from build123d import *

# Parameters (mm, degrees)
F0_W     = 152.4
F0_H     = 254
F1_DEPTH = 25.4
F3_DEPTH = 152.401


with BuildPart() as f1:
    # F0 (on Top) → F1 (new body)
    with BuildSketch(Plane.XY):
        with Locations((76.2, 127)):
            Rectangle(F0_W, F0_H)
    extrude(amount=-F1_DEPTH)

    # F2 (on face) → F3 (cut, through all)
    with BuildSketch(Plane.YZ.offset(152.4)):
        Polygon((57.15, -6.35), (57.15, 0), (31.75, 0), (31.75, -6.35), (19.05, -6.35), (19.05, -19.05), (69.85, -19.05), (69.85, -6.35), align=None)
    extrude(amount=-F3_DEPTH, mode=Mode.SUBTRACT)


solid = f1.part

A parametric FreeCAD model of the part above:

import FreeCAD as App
import Part
import Sketcher
Q = App.Units.Quantity

doc = App.newDocument("Part")
body = doc.addObject("PartDesign::Body", "Body")

sketch1 = body.newObject("Sketcher::SketchObject", "Sketch")
sketch1.AttachmentSupport = (doc.getObject("XY_Plane"), [""])
sketch1.MapMode = "FlatFace"
sketch1.addGeometry(Part.LineSegment(App.Vector(0, 254, 0), App.Vector(0, 0, 0)), False)
sketch1.addGeometry(Part.LineSegment(App.Vector(0, 0, 0), App.Vector(152, 0, 0)), False)
sketch1.addGeometry(Part.LineSegment(App.Vector(152, 0, 0), App.Vector(152, 254, 0)), False)
sketch1.addGeometry(Part.LineSegment(App.Vector(152, 254, 0), App.Vector(0, 254, 0)), False)
sketch1.addConstraint(Sketcher.Constraint("Coincident", 0, 2, 1, 1))
sketch1.addConstraint(Sketcher.Constraint("Coincident", 1, 2, 2, 1))
sketch1.addConstraint(Sketcher.Constraint("Coincident", 2, 2, 3, 1))
sketch1.addConstraint(Sketcher.Constraint("Coincident", 3, 2, 0, 1))
sketch1.addConstraint(Sketcher.Constraint("Vertical", 0))
sketch1.addConstraint(Sketcher.Constraint("Horizontal", 1))
sketch1.addConstraint(Sketcher.Constraint("Vertical", 2))
sketch1.addConstraint(Sketcher.Constraint("Horizontal", 3))
sketch1.addConstraint(Sketcher.Constraint("Coincident", 0, 2, -1, 1))
sketch1.addConstraint(Sketcher.Constraint("DistanceX", 1, 1, 1, 2, Q("6 in")))
sketch1.addConstraint(Sketcher.Constraint("DistanceY", 0, 2, 0, 1, Q("10 in")))
pad1 = body.newObject("PartDesign::Pad", "Pad")
pad1.Profile = sketch1
pad1.Length = Q("1 in")
pad1.Reversed = True

sketch2 = body.newObject("Sketcher::SketchObject", "Sketch001")
sketch2.AttachmentSupport = (doc.getObject("YZ_Plane"), [""])
sketch2.MapMode = "FlatFace"
sketch2.AttachmentOffset = App.Placement(App.Vector(0, 0, 6 * 25.4), App.Rotation())
sketch2.addGeometry(Part.LineSegment(App.Vector(57, -6, 0), App.Vector(57, 0, 0)), False)
sketch2.addGeometry(Part.LineSegment(App.Vector(57, 0, 0), App.Vector(32, 0, 0)), False)
sketch2.addGeometry(Part.LineSegment(App.Vector(32, 0, 0), App.Vector(32, -6, 0)), False)
sketch2.addGeometry(Part.LineSegment(App.Vector(32, -6, 0), App.Vector(19, -6, 0)), False)
sketch2.addGeometry(Part.LineSegment(App.Vector(19, -6, 0), App.Vector(19, -19, 0)), False)
sketch2.addGeometry(Part.LineSegment(App.Vector(19, -19, 0), App.Vector(70, -19, 0)), False)
sketch2.addGeometry(Part.LineSegment(App.Vector(70, -19, 0), App.Vector(70, -6, 0)), False)
sketch2.addGeometry(Part.LineSegment(App.Vector(70, -6, 0), App.Vector(57, -6, 0)), False)
sketch2.addConstraint(Sketcher.Constraint("Coincident", 0, 2, 1, 1))
sketch2.addConstraint(Sketcher.Constraint("Coincident", 1, 2, 2, 1))
sketch2.addConstraint(Sketcher.Constraint("Coincident", 2, 2, 3, 1))
sketch2.addConstraint(Sketcher.Constraint("Coincident", 3, 2, 4, 1))
sketch2.addConstraint(Sketcher.Constraint("Coincident", 4, 2, 5, 1))
sketch2.addConstraint(Sketcher.Constraint("Coincident", 5, 2, 6, 1))
sketch2.addConstraint(Sketcher.Constraint("Coincident", 6, 2, 7, 1))
sketch2.addConstraint(Sketcher.Constraint("Coincident", 7, 2, 0, 1))
sketch2.addConstraint(Sketcher.Constraint("Vertical", 0))
sketch2.addConstraint(Sketcher.Constraint("Horizontal", 1))
sketch2.addConstraint(Sketcher.Constraint("Vertical", 2))
sketch2.addConstraint(Sketcher.Constraint("Horizontal", 3))
sketch2.addConstraint(Sketcher.Constraint("Vertical", 4))
sketch2.addConstraint(Sketcher.Constraint("Horizontal", 5))
sketch2.addConstraint(Sketcher.Constraint("Vertical", 6))
sketch2.addConstraint(Sketcher.Constraint("Horizontal", 7))
sketch2.addConstraint(Sketcher.Constraint("PointOnObject", 0, 2, -1))
sketch2.addConstraint(Sketcher.Constraint("Horizontal", 3, 2, 6, 2))
sketch2.addConstraint(Sketcher.Constraint("Equal", 3, 7))
sketch2.addConstraint(Sketcher.Constraint("Equal", 7, 4))
sketch2.addConstraint(Sketcher.Constraint("DistanceX", 1, 2, 1, 1, Q("1 in")))
sketch2.addConstraint(Sketcher.Constraint("DistanceX", 5, 1, 5, 2, Q("2 in")))
sketch2.addConstraint(Sketcher.Constraint("DistanceY", 0, 1, 0, 2, Q("0.25 in")))
sketch2.addConstraint(Sketcher.Constraint("DistanceX", -1, 1, 0, 2, Q("2.25 in")))
pocket1 = body.newObject("PartDesign::Pocket", "Pocket")
pocket1.Profile = sketch2
pocket1.Type = "ThroughAll"

doc.recompute()
